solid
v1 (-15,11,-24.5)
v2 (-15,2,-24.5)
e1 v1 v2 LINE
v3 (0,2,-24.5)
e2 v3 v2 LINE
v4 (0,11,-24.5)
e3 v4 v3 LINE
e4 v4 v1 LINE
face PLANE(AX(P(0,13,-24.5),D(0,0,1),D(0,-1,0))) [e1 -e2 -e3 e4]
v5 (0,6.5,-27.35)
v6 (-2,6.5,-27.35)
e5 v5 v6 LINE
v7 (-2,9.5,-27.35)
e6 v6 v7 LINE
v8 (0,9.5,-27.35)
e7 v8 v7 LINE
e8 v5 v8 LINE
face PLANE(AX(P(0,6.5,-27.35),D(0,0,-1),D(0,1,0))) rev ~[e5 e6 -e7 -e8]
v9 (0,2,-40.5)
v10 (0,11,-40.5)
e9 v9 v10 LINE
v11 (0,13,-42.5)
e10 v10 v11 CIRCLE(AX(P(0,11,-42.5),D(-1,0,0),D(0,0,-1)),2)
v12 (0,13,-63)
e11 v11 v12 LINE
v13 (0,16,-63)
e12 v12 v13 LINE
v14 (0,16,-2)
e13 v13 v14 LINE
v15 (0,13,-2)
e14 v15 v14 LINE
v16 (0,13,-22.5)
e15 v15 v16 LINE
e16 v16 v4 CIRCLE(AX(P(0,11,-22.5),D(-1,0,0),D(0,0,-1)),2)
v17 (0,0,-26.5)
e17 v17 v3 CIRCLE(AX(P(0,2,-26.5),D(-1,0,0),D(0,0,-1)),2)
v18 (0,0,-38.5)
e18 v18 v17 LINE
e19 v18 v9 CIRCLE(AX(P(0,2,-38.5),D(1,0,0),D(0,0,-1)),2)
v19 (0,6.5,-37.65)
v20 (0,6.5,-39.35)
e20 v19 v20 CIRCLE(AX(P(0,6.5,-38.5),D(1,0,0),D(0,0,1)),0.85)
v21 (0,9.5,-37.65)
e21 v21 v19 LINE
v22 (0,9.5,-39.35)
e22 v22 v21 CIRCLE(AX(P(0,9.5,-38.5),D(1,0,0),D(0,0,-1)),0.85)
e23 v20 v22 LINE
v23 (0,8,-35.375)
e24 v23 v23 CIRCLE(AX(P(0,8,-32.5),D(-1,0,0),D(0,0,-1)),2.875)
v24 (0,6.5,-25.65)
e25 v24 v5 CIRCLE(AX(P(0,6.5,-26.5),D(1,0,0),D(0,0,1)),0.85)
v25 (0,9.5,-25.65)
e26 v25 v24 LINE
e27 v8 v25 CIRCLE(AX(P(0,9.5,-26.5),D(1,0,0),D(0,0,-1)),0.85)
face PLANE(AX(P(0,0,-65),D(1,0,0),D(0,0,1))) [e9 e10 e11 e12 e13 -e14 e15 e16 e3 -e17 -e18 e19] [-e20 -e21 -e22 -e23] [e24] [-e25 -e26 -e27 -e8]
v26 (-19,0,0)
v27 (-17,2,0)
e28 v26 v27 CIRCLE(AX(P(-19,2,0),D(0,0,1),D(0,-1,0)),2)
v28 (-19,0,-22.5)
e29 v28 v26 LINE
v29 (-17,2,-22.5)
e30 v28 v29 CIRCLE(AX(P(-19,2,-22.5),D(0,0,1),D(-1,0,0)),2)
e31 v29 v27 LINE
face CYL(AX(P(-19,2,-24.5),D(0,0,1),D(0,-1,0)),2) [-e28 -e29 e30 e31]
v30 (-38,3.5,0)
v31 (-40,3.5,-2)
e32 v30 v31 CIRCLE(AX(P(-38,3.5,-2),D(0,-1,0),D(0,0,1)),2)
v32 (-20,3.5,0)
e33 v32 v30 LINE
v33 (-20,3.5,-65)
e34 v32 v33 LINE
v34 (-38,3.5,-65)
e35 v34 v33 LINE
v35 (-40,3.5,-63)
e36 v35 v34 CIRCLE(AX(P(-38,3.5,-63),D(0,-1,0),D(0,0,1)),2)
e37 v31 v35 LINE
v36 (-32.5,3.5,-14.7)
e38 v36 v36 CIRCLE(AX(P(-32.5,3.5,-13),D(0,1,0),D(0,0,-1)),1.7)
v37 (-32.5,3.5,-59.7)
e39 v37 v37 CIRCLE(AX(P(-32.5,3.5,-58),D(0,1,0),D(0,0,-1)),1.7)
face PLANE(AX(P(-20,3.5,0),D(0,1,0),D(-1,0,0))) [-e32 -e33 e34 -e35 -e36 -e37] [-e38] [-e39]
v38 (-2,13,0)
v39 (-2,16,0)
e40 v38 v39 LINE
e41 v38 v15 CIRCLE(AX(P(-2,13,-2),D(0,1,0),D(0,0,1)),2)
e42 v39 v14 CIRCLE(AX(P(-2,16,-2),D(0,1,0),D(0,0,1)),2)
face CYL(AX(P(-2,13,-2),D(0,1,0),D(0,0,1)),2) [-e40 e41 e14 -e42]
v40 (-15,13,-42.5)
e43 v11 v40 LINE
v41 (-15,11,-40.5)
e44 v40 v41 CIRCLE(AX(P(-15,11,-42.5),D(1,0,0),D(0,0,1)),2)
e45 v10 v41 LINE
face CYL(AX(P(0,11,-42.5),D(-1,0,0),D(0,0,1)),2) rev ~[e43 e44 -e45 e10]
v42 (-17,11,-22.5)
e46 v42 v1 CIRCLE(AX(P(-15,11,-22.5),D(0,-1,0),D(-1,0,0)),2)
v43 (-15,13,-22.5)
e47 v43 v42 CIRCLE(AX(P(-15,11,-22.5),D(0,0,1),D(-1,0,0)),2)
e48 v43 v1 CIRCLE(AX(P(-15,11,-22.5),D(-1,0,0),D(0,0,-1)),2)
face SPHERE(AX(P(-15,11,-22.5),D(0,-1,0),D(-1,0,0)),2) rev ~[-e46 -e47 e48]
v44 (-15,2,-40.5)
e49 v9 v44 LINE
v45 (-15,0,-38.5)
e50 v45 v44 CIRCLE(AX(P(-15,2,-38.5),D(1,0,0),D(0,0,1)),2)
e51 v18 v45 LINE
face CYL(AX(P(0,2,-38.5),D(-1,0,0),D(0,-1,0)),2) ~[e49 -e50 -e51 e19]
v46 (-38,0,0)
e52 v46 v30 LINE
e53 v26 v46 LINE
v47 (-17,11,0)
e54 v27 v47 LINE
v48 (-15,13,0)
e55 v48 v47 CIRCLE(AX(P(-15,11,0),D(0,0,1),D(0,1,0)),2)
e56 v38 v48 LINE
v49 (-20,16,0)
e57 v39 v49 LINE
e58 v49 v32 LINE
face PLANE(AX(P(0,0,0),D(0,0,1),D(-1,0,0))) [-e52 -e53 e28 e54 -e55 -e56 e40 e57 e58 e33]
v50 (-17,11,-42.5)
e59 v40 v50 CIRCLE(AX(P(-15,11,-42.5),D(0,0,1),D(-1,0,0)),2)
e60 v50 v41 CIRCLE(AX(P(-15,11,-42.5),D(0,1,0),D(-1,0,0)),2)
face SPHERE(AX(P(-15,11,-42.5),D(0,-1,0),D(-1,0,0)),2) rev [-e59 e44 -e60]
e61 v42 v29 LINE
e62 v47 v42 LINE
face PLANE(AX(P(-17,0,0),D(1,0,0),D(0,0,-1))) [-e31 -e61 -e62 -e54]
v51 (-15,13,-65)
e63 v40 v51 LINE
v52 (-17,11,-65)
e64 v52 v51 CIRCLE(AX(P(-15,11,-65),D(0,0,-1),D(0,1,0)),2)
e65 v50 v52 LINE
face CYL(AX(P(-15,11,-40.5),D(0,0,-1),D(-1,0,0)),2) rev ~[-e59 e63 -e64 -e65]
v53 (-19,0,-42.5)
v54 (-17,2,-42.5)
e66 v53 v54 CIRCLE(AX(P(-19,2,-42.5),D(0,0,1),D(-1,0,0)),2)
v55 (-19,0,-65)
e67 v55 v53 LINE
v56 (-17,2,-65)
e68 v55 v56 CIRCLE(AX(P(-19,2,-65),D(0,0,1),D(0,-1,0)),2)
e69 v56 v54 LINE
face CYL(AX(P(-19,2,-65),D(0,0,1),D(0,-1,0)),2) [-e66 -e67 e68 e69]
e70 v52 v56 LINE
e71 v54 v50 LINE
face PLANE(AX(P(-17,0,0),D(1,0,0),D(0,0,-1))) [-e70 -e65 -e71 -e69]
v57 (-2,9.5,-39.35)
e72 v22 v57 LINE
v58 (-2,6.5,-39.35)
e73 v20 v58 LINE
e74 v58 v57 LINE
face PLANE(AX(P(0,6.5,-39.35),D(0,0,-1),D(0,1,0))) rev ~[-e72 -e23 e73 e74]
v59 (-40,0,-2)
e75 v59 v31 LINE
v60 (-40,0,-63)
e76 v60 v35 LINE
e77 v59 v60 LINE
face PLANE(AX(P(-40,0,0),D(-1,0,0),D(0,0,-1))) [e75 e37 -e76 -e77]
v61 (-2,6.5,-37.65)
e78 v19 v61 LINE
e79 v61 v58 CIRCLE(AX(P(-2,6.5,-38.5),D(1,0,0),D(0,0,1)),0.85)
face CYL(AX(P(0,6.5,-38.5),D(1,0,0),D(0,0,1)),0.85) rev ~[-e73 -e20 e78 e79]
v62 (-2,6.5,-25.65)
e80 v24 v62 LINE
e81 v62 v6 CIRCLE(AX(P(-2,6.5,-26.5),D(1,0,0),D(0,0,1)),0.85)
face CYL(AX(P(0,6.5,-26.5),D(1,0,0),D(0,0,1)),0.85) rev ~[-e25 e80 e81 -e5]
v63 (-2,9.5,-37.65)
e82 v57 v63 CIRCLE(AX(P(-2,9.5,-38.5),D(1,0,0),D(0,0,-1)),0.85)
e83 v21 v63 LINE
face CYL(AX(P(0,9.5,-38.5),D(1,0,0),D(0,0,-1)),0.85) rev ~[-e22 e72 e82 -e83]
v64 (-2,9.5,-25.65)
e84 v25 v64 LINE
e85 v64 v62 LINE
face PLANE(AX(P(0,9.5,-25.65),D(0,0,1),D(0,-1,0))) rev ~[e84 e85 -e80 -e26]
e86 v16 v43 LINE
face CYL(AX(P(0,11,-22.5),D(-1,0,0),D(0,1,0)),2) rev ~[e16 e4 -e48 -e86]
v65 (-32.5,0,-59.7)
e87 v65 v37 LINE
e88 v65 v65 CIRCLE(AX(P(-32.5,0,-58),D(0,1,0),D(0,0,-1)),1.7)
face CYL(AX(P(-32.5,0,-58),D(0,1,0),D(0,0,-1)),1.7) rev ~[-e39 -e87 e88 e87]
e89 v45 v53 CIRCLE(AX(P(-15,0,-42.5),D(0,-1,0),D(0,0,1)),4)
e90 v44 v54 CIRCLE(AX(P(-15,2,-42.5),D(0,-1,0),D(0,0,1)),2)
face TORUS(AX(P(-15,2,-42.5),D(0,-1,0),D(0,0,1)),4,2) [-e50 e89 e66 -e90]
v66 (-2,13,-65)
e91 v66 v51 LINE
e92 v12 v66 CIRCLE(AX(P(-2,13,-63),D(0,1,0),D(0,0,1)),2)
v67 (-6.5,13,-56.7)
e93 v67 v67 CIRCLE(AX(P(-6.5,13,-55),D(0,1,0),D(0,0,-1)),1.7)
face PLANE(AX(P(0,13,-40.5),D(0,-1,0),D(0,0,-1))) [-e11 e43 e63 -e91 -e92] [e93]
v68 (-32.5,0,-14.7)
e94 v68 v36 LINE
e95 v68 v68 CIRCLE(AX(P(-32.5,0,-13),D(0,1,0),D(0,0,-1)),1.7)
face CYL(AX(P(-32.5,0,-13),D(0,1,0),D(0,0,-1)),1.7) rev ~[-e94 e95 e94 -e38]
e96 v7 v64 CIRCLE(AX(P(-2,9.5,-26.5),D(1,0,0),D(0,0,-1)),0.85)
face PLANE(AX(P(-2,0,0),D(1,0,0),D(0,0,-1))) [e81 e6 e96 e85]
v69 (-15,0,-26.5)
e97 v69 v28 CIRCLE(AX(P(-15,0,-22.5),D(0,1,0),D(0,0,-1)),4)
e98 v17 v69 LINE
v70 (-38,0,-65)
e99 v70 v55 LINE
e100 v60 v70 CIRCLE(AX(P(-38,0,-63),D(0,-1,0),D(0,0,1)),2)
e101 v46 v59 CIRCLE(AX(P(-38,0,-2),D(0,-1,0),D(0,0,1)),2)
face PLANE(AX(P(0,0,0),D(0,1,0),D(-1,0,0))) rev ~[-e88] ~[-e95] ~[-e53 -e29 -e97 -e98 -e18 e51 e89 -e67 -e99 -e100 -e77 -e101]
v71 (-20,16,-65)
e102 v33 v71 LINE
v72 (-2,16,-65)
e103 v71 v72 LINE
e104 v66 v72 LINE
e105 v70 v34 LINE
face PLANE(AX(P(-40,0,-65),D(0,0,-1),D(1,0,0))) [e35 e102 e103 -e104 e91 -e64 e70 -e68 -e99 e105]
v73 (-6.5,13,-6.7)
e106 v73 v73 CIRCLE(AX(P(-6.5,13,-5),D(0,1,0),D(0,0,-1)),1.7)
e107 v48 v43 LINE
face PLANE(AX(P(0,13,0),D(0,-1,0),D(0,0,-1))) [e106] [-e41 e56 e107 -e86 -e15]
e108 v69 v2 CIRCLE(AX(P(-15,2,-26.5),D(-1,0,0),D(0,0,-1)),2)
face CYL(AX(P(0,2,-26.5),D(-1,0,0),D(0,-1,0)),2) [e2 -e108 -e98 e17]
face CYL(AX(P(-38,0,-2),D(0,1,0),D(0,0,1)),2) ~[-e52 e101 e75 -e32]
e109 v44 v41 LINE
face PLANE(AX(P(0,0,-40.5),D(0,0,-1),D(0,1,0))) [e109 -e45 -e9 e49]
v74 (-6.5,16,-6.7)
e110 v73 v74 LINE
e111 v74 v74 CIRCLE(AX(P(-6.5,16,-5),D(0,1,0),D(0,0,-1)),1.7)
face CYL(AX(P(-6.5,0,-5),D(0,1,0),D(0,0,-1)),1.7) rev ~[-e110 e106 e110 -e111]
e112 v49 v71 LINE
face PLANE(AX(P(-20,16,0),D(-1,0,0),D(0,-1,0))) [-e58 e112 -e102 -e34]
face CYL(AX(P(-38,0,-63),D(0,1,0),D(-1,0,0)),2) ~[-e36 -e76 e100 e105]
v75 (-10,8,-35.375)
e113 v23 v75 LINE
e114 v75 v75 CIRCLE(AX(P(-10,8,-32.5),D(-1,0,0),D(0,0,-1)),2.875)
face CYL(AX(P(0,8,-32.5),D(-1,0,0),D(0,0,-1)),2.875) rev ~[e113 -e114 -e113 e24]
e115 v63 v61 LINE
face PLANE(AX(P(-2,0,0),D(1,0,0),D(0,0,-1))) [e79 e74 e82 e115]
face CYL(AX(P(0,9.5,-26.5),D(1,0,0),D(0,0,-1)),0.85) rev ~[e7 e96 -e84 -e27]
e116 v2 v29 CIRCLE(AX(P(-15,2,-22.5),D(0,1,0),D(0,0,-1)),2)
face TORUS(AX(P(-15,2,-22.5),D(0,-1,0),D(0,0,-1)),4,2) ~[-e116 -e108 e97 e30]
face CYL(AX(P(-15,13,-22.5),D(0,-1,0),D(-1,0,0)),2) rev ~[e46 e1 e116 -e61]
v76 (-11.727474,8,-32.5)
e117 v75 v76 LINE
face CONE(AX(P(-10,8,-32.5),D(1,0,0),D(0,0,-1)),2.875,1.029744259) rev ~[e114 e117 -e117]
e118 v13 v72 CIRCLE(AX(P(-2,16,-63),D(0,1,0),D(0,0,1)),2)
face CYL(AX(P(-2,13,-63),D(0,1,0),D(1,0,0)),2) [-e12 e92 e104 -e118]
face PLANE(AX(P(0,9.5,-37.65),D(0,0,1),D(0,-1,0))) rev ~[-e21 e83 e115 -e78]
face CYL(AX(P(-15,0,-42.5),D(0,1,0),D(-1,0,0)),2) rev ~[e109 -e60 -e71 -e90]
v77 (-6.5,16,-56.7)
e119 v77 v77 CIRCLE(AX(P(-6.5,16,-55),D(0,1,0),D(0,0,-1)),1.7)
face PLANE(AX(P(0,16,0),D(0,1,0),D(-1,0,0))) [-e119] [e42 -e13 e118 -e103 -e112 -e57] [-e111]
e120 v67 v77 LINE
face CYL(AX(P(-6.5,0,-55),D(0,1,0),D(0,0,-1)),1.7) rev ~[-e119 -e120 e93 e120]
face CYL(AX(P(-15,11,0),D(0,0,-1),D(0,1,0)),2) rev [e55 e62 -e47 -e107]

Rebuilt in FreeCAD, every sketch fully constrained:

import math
import FreeCAD as App
import Part
import Sketcher
from FreeCAD import Vector
Q = App.Units.Quantity


def edges_at(feature, points):
    """Names of the edges that pass closest to the given points."""
    edges = feature.Shape.Edges
    near = lambda p: min(range(len(edges)), key=lambda i: edges[i].distToShape(Part.Vertex(*p))[0])
    return sorted({f"Edge{near(p) + 1}" for p in points})

doc = App.newDocument("Part")
body = doc.addObject("PartDesign::Body", "Body")

# Sketch on XZ plane
sketch1 = doc.addObject("Sketcher::SketchObject", "Sketch")
body.addObject(sketch1)
sketch1.AttachmentSupport = (doc.XZ_Plane, [""])
sketch1.MapMode = "FlatFace"
sketch1.addGeometry([
    Part.LineSegment(Vector(-40, 0, 0), Vector(0, 0, 0)),
    Part.LineSegment(Vector(0, 0, 0), Vector(0, -65, 0)),
    Part.LineSegment(Vector(0, -65, 0), Vector(-40, -65, 0)),
    Part.LineSegment(Vector(-40, -65, 0), Vector(-40, 0, 0)),
], False)
sketch1.addConstraint([
    Sketcher.Constraint("Coincident", 0, 2, 1, 1),
    Sketcher.Constraint("Coincident", 1, 2, 2, 1),
    Sketcher.Constraint("Coincident", 2, 2, 3, 1),
    Sketcher.Constraint("Coincident", 3, 2, 0, 1),
    Sketcher.Constraint("Horizontal", 0),
    Sketcher.Constraint("Vertical", 1),
    Sketcher.Constraint("Horizontal", 2),
    Sketcher.Constraint("Vertical", 3),
    Sketcher.Constraint("Coincident", 0, 2, -1, 1),
    Sketcher.Constraint("DistanceX", 0, 1, 0, 2, Q("40 mm")),
    Sketcher.Constraint("DistanceY", 1, 2, 1, 1, Q("65 mm")),
])
pad1 = doc.addObject("PartDesign::Pad", "Pad")
body.addObject(pad1)
pad1.Profile = sketch1
pad1.Length = 16
pad1.Reversed = True

# Sketch on XY plane
sketch2 = doc.addObject("Sketcher::SketchObject", "Sketch001")
body.addObject(sketch2)
sketch2.AttachmentSupport = (doc.XY_Plane, [""])
sketch2.MapMode = "FlatFace"
sketch2.addGeometry([
    Part.LineSegment(Vector(-20, 16, 0), Vector(-40, 16, 0)),
    Part.LineSegment(Vector(-40, 16, 0), Vector(-40, 4, 0)),
    Part.LineSegment(Vector(-40, 4, 0), Vector(-20, 4, 0)),
    Part.LineSegment(Vector(-20, 4, 0), Vector(-20, 16, 0)),
], False)
sketch2.addConstraint([
    Sketcher.Constraint("Coincident", 0, 2, 1, 1),
    Sketcher.Constraint("Coincident", 1, 2, 2, 1),
    Sketcher.Constraint("Coincident", 2, 2, 3, 1),
    Sketcher.Constraint("Coincident", 3, 2, 0, 1),
    Sketcher.Constraint("Horizontal", 0),
    Sketcher.Constraint("Vertical", 1),
    Sketcher.Constraint("Horizontal", 2),
    Sketcher.Constraint("Vertical", 3),
    Sketcher.Constraint("DistanceX", 0, 2, 0, 1, Q("20 mm")),
    Sketcher.Constraint("DistanceX", 2, 2, -1, 1, Q("20 mm")),
    Sketcher.Constraint("DistanceY", -1, 1, 1, 2, Q("3.5 mm")),
    Sketcher.Constraint("DistanceY", 1, 2, 1, 1, Q("12.5 mm")),
])
pocket1 = doc.addObject("PartDesign::Pocket", "Pocket")
body.addObject(pocket1)
pocket1.Profile = sketch2
pocket1.Type = "ThroughAll"

# Sketch on XZ plane
sketch3 = doc.addObject("Sketcher::SketchObject", "Sketch002")
body.addObject(sketch3)
sketch3.AttachmentSupport = (doc.XZ_Plane, [""])
sketch3.MapMode = "FlatFace"
sketch3.addGeometry([
    Part.Circle(Vector(-32.5, -58, 0), Vector(0, 0, 1), 1.7),
    Part.Circle(Vector(-32.5, -13, 0), Vector(0, 0, 1), 1.7),
    Part.Circle(Vector(-6.5, -55, 0), Vector(0, 0, 1), 1.7),
    Part.Circle(Vector(-6.5, -5, 0), Vector(0, 0, 1), 1.7),
], False)
sketch3.addConstraint([
    Sketcher.Constraint("Equal", 0, 1),
    Sketcher.Constraint("Equal", 1, 2),
    Sketcher.Constraint("Equal", 2, 3),
    Sketcher.Constraint("Vertical", 0, 3, 1, 3),
    Sketcher.Constraint("Vertical", 2, 3, 3, 3),
    Sketcher.Constraint("Diameter", 0, Q("3.4 mm")),
    Sketcher.Constraint("DistanceY", 0, 3, -1, 1, Q("58 mm")),
    Sketcher.Constraint("DistanceY", 1, 3, -1, 1, Q("13 mm")),
    Sketcher.Constraint("DistanceY", 2, 3, -1, 1, Q("55 mm")),
    Sketcher.Constraint("DistanceY", 3, 3, -1, 1, Q("5 mm")),
    Sketcher.Constraint("DistanceX", 0, 3, 2, 3, Q("26 mm")),
    Sketcher.Constraint("DistanceX", 0, 3, -1, 1, Q("32.5 mm")),
])
doc.recompute()
hole = doc.addObject("PartDesign::Hole", "Hole")
body.addObject(hole)
hole.Profile = sketch3
hole.ThreadType = "None"
hole.Diameter = 3.4
hole.DepthType = "ThroughAll"

# Sketch on YZ plane
sketch4 = doc.addObject("Sketcher::SketchObject", "Sketch003")
body.addObject(sketch4)
sketch4.AttachmentSupport = (doc.YZ_Plane, [""])
sketch4.MapMode = "FlatFace"
sketch4.addGeometry([
    Part.ArcOfCircle(Part.Circle(Vector(6.5, -38.5, 0), Vector(0, 0, 1), 0.9), math.radians(90), math.radians(270)),  # 0
    Part.LineSegment(Vector(6.5, -39.4, 0), Vector(9.5, -39.4, 0)),  # 1
    Part.ArcOfCircle(Part.Circle(Vector(9.5, -38.5, 0), Vector(0, 0, 1), 0.9), math.radians(-90), math.radians(90)),  # 2
    Part.LineSegment(Vector(9.5, -37.6, 0), Vector(6.5, -37.6, 0)),  # 3
    Part.ArcOfCircle(Part.Circle(Vector(6.5, -26.5, 0), Vector(0, 0, 1), 0.9), math.radians(90), math.radians(270)),  # 4
    Part.LineSegment(Vector(6.5, -27.4, 0), Vector(9.5, -27.4, 0)),  # 5
    Part.ArcOfCircle(Part.Circle(Vector(9.5, -26.5, 0), Vector(0, 0, 1), 0.9), math.radians(-90), math.radians(90)),  # 6
    Part.LineSegment(Vector(9.5, -25.6, 0), Vector(6.5, -25.6, 0)),  # 7
], False)
sketch4.addConstraint([
    Sketcher.Constraint("Tangent", 0, 2, 1, 1),
    Sketcher.Constraint("Tangent", 1, 2, 2, 1),
    Sketcher.Constraint("Tangent", 2, 2, 3, 1),
    Sketcher.Constraint("Tangent", 3, 2, 0, 1),
    Sketcher.Constraint("Tangent", 4, 2, 5, 1),
    Sketcher.Constraint("Tangent", 5, 2, 6, 1),
    Sketcher.Constraint("Tangent", 6, 2, 7, 1),
    Sketcher.Constraint("Tangent", 7, 2, 4, 1),
    Sketcher.Constraint("Horizontal", 1),
    Sketcher.Constraint("Horizontal", 3),
    Sketcher.Constraint("Horizontal", 5),
    Sketcher.Constraint("Horizontal", 7),
    Sketcher.Constraint("Equal", 2, 4),
    Sketcher.Constraint("Vertical", 0, 3, 4, 3),
    Sketcher.Constraint("Vertical", 2, 3, 6, 3),
    Sketcher.Constraint("DistanceX", 1, 1, 1, 2, Q("3 mm")),
    Sketcher.Constraint("Radius", 0, Q("0.85 mm")),
    Sketcher.Constraint("DistanceY", 0, 3, 4, 3, Q("12 mm")),
    Sketcher.Constraint("DistanceX", -1, 1, 0, 3, Q("6.5 mm")),
    Sketcher.Constraint("DistanceY", 0, 3, -1, 1, Q("38.5 mm")),
])
pocket2 = doc.addObject("PartDesign::Pocket", "Pocket001")
body.addObject(pocket2)
pocket2.Profile = sketch4
pocket2.Length = 2

# Sketch on YZ plane
sketch5 = doc.addObject("Sketcher::SketchObject", "Sketch004")
body.addObject(sketch5)
sketch5.AttachmentSupport = (doc.YZ_Plane, [""])
sketch5.MapMode = "FlatFace"
sketch5.addGeometry([
    Part.LineSegment(Vector(0, -40, 0), Vector(0, -65, 0)),  # 0
    Part.LineSegment(Vector(0, -65, 0), Vector(13, -65, 0)),  # 1
    Part.LineSegment(Vector(13, -65, 0), Vector(13, -40, 0)),  # 2
    Part.LineSegment(Vector(13, -40, 0), Vector(0, -40, 0)),  # 3
    Part.LineSegment(Vector(0, 0, 0), Vector(0, -24, 0)),  # 4
    Part.LineSegment(Vector(0, -24, 0), Vector(13, -24, 0)),  # 5
    Part.LineSegment(Vector(13, -24, 0), Vector(13, 0, 0)),  # 6
    Part.LineSegment(Vector(13, 0, 0), Vector(0, 0, 0)),  # 7
], False)
sketch5.addConstraint([
    Sketcher.Constraint("Coincident", 0, 2, 1, 1),
    Sketcher.Constraint("Coincident", 1, 2, 2, 1),
    Sketcher.Constraint("Coincident", 2, 2, 3, 1),
    Sketcher.Constraint("Coincident", 3, 2, 0, 1),
    Sketcher.Constraint("Coincident", 4, 2, 5, 1),
    Sketcher.Constraint("Coincident", 5, 2, 6, 1),
    Sketcher.Constraint("Coincident", 6, 2, 7, 1),
    Sketcher.Constraint("Coincident", 7, 2, 4, 1),
    Sketcher.Constraint("Vertical", 0),
    Sketcher.Constraint("Horizontal", 1),
    Sketcher.Constraint("Vertical", 2),
    Sketcher.Constraint("Horizontal", 3),
    Sketcher.Constraint("Vertical", 4),
    Sketcher.Constraint("Horizontal", 5),
    Sketcher.Constraint("Vertical", 6),
    Sketcher.Constraint("Horizontal", 7),
    Sketcher.Constraint("Coincident", 7, 2, -1, 1),
    Sketcher.Constraint("PointOnObject", 0, 2, -2),
    Sketcher.Constraint("Vertical", 2, 2, 5, 2),
    Sketcher.Constraint("Equal", 2, 4),
    Sketcher.Constraint("DistanceY", 0, 2, -1, 1, Q("65 mm")),
    Sketcher.Constraint("DistanceY", 3, 2, 4, 2, Q("16 mm")),
    Sketcher.Constraint("DistanceX", 1, 1, 1, 2, Q("13 mm")),
])
pocket3 = doc.addObject("PartDesign::Pocket", "Pocket002")
body.addObject(pocket3)
pocket3.Profile = sketch5
pocket3.Length = 17
doc.recompute()

fillet = doc.addObject("PartDesign::Fillet", "Fillet")
body.addObject(fillet)
fillet.Base = (pocket3, edges_at(pocket3, [
    (-8.5, 0, -40.5),
    (-8.5, 0, -24.5),
    (-40, 1.75, -65),
    (-40, 1.75, 0),
    (0, 14.5, 0),
    (0, 14.5, -65),
    (-17, 0, -52.75),
    (-17, 0, -12.25),
    (-17, 6.5, -40.5),
    (-17, 6.5, -24.5),
    (-17, 13, -52.75),
    (-8.5, 13, -40.5),
    (-17, 13, -12.25),
    (-8.5, 13, -24.5),
]))
fillet.Radius = 2

# Sketch on YZ plane
sketch6 = doc.addObject("Sketcher::SketchObject", "Sketch005")
body.addObject(sketch6)
sketch6.AttachmentSupport = (doc.YZ_Plane, [""])
sketch6.MapMode = "FlatFace"
sketch6.addGeometry(Part.Circle(Vector(8, -32.5, 0), Vector(0, 0, 1), 2.9), False)
sketch6.addConstraint([
    Sketcher.Constraint("Diameter", 0, Q("5.75 mm")),
    Sketcher.Constraint("DistanceX", -1, 1, 0, 3, Q("8 mm")),
    Sketcher.Constraint("DistanceY", 0, 3, -1, 1, Q("32.5 mm")),
])
doc.recompute()
hole2 = doc.addObject("PartDesign::Hole", "Hole001")
body.addObject(hole2)
hole2.Profile = sketch6
hole2.ThreadType = "None"
hole2.Diameter = 5.75
hole2.DepthType = "Dimension"
hole2.Depth = 10
hole2.DrillPoint = "Angled"
hole2.DrillPointAngle = 118

doc.recompute()
